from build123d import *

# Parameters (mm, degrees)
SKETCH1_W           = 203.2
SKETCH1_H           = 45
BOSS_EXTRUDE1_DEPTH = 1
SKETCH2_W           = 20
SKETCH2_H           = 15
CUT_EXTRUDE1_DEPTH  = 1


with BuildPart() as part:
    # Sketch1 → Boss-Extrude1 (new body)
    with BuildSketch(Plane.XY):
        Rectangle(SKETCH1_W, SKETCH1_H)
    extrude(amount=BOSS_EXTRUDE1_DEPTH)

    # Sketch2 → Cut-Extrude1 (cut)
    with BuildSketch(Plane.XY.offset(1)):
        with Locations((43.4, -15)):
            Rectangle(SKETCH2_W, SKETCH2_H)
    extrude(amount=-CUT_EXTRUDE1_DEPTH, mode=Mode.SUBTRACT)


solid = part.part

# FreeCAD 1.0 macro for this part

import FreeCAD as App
import Part
import Sketcher

V = App.Vector
Q = App.Units.Quantity


def add_polygon(sketch, points):
    """Adds a closed chain of lines whose ends are joined by coincident constraints."""
    first, n = sketch.GeometryCount, len(points)
    for a, b in zip(points, points[1:] + points[:1]):
        sketch.addGeometry(Part.LineSegment(App.Vector(*a, 0), App.Vector(*b, 0)), False)
    for i in range(n):
        sketch.addConstraint(Sketcher.Constraint("Coincident", first + i, 2, first + (i + 1) % n, 1))

doc = App.newDocument("Part")
params = doc.addObject("Spreadsheet::Sheet", "Params")
for row, (alias, value) in enumerate([
    ("sketch1_height", "45 mm"),
    ("sketch1_width", "203.2 mm"),
    ("pad1_length", "1 mm"),
    ("sketch2_width", "20 mm"),
    ("sketch2_height", "15 mm"),
    ("pocket1_length", "1 mm"),
], start=1):
    params.set(f"A{row}", alias)
    params.set(f"B{row}", "=" + value)
    params.setAlias(f"B{row}", alias)

body = doc.addObject("PartDesign::Body", "Body")

sketch1 = body.newObject("Sketcher::SketchObject", "Sketch")
sketch1.AttachmentSupport = (doc.getObject("XY_Plane"), [""])
sketch1.MapMode = "FlatFace"
add_polygon(sketch1, [(-102, 22), (-102, -22), (102, -22), (102, 22)])
sketch1.addConstraint([
    Sketcher.Constraint("Vertical", 0),
    Sketcher.Constraint("Horizontal", 1),
    Sketcher.Constraint("Vertical", 2),
    Sketcher.Constraint("Horizontal", 3),
    Sketcher.Constraint("Symmetric", 0, 2, 2, 2, -1, 1),
    Sketcher.Constraint("DistanceY", 0, 2, 0, 1, Q("45 mm")),
    Sketcher.Constraint("DistanceX", 1, 1, 1, 2, Q("203.2 mm")),
])
sketch1.setExpression("Constraints[9]", "Params.sketch1_height")
sketch1.setExpression("Constraints[10]", "Params.sketch1_width")
pad1 = body.newObject("PartDesign::Pad", "Pad")
pad1.Profile = sketch1
pad1.setExpression("Length", "Params.pad1_length")

sketch2 = body.newObject("Sketcher::SketchObject", "Sketch001")
sketch2.AttachmentSupport = (doc.getObject("XY_Plane"), [""])
sketch2.MapMode = "FlatFace"
sketch2.AttachmentOffset = App.Placement(V(0, 0, 1), App.Rotation())
add_polygon(sketch2, [(33, -8), (33, -22), (53, -22), (53, -8)])
sketch2.addConstraint([
    Sketcher.Constraint("Vertical", 0),
    Sketcher.Constraint("Horizontal", 1),
    Sketcher.Constraint("Vertical", 2),
    Sketcher.Constraint("Horizontal", 3),
    Sketcher.Constraint("DistanceX", 1, 1, 1, 2, Q("20 mm")),
    Sketcher.Constraint("DistanceY", 0, 2, 0, 1, Q("15 mm")),
    Sketcher.Constraint("DistanceX", -1, 1, 0, 2, Q("33.4 mm")),
    Sketcher.Constraint("DistanceY", 0, 2, -1, 1, Q("22.5 mm")),
])
sketch2.setExpression("Constraints[8]", "Params.sketch2_width")
sketch2.setExpression("Constraints[9]", "Params.sketch2_height")
pocket1 = body.newObject("PartDesign::Pocket", "Pocket")
pocket1.Profile = sketch2
pocket1.setExpression("Length", "Params.pocket1_length")

doc.recompute()
